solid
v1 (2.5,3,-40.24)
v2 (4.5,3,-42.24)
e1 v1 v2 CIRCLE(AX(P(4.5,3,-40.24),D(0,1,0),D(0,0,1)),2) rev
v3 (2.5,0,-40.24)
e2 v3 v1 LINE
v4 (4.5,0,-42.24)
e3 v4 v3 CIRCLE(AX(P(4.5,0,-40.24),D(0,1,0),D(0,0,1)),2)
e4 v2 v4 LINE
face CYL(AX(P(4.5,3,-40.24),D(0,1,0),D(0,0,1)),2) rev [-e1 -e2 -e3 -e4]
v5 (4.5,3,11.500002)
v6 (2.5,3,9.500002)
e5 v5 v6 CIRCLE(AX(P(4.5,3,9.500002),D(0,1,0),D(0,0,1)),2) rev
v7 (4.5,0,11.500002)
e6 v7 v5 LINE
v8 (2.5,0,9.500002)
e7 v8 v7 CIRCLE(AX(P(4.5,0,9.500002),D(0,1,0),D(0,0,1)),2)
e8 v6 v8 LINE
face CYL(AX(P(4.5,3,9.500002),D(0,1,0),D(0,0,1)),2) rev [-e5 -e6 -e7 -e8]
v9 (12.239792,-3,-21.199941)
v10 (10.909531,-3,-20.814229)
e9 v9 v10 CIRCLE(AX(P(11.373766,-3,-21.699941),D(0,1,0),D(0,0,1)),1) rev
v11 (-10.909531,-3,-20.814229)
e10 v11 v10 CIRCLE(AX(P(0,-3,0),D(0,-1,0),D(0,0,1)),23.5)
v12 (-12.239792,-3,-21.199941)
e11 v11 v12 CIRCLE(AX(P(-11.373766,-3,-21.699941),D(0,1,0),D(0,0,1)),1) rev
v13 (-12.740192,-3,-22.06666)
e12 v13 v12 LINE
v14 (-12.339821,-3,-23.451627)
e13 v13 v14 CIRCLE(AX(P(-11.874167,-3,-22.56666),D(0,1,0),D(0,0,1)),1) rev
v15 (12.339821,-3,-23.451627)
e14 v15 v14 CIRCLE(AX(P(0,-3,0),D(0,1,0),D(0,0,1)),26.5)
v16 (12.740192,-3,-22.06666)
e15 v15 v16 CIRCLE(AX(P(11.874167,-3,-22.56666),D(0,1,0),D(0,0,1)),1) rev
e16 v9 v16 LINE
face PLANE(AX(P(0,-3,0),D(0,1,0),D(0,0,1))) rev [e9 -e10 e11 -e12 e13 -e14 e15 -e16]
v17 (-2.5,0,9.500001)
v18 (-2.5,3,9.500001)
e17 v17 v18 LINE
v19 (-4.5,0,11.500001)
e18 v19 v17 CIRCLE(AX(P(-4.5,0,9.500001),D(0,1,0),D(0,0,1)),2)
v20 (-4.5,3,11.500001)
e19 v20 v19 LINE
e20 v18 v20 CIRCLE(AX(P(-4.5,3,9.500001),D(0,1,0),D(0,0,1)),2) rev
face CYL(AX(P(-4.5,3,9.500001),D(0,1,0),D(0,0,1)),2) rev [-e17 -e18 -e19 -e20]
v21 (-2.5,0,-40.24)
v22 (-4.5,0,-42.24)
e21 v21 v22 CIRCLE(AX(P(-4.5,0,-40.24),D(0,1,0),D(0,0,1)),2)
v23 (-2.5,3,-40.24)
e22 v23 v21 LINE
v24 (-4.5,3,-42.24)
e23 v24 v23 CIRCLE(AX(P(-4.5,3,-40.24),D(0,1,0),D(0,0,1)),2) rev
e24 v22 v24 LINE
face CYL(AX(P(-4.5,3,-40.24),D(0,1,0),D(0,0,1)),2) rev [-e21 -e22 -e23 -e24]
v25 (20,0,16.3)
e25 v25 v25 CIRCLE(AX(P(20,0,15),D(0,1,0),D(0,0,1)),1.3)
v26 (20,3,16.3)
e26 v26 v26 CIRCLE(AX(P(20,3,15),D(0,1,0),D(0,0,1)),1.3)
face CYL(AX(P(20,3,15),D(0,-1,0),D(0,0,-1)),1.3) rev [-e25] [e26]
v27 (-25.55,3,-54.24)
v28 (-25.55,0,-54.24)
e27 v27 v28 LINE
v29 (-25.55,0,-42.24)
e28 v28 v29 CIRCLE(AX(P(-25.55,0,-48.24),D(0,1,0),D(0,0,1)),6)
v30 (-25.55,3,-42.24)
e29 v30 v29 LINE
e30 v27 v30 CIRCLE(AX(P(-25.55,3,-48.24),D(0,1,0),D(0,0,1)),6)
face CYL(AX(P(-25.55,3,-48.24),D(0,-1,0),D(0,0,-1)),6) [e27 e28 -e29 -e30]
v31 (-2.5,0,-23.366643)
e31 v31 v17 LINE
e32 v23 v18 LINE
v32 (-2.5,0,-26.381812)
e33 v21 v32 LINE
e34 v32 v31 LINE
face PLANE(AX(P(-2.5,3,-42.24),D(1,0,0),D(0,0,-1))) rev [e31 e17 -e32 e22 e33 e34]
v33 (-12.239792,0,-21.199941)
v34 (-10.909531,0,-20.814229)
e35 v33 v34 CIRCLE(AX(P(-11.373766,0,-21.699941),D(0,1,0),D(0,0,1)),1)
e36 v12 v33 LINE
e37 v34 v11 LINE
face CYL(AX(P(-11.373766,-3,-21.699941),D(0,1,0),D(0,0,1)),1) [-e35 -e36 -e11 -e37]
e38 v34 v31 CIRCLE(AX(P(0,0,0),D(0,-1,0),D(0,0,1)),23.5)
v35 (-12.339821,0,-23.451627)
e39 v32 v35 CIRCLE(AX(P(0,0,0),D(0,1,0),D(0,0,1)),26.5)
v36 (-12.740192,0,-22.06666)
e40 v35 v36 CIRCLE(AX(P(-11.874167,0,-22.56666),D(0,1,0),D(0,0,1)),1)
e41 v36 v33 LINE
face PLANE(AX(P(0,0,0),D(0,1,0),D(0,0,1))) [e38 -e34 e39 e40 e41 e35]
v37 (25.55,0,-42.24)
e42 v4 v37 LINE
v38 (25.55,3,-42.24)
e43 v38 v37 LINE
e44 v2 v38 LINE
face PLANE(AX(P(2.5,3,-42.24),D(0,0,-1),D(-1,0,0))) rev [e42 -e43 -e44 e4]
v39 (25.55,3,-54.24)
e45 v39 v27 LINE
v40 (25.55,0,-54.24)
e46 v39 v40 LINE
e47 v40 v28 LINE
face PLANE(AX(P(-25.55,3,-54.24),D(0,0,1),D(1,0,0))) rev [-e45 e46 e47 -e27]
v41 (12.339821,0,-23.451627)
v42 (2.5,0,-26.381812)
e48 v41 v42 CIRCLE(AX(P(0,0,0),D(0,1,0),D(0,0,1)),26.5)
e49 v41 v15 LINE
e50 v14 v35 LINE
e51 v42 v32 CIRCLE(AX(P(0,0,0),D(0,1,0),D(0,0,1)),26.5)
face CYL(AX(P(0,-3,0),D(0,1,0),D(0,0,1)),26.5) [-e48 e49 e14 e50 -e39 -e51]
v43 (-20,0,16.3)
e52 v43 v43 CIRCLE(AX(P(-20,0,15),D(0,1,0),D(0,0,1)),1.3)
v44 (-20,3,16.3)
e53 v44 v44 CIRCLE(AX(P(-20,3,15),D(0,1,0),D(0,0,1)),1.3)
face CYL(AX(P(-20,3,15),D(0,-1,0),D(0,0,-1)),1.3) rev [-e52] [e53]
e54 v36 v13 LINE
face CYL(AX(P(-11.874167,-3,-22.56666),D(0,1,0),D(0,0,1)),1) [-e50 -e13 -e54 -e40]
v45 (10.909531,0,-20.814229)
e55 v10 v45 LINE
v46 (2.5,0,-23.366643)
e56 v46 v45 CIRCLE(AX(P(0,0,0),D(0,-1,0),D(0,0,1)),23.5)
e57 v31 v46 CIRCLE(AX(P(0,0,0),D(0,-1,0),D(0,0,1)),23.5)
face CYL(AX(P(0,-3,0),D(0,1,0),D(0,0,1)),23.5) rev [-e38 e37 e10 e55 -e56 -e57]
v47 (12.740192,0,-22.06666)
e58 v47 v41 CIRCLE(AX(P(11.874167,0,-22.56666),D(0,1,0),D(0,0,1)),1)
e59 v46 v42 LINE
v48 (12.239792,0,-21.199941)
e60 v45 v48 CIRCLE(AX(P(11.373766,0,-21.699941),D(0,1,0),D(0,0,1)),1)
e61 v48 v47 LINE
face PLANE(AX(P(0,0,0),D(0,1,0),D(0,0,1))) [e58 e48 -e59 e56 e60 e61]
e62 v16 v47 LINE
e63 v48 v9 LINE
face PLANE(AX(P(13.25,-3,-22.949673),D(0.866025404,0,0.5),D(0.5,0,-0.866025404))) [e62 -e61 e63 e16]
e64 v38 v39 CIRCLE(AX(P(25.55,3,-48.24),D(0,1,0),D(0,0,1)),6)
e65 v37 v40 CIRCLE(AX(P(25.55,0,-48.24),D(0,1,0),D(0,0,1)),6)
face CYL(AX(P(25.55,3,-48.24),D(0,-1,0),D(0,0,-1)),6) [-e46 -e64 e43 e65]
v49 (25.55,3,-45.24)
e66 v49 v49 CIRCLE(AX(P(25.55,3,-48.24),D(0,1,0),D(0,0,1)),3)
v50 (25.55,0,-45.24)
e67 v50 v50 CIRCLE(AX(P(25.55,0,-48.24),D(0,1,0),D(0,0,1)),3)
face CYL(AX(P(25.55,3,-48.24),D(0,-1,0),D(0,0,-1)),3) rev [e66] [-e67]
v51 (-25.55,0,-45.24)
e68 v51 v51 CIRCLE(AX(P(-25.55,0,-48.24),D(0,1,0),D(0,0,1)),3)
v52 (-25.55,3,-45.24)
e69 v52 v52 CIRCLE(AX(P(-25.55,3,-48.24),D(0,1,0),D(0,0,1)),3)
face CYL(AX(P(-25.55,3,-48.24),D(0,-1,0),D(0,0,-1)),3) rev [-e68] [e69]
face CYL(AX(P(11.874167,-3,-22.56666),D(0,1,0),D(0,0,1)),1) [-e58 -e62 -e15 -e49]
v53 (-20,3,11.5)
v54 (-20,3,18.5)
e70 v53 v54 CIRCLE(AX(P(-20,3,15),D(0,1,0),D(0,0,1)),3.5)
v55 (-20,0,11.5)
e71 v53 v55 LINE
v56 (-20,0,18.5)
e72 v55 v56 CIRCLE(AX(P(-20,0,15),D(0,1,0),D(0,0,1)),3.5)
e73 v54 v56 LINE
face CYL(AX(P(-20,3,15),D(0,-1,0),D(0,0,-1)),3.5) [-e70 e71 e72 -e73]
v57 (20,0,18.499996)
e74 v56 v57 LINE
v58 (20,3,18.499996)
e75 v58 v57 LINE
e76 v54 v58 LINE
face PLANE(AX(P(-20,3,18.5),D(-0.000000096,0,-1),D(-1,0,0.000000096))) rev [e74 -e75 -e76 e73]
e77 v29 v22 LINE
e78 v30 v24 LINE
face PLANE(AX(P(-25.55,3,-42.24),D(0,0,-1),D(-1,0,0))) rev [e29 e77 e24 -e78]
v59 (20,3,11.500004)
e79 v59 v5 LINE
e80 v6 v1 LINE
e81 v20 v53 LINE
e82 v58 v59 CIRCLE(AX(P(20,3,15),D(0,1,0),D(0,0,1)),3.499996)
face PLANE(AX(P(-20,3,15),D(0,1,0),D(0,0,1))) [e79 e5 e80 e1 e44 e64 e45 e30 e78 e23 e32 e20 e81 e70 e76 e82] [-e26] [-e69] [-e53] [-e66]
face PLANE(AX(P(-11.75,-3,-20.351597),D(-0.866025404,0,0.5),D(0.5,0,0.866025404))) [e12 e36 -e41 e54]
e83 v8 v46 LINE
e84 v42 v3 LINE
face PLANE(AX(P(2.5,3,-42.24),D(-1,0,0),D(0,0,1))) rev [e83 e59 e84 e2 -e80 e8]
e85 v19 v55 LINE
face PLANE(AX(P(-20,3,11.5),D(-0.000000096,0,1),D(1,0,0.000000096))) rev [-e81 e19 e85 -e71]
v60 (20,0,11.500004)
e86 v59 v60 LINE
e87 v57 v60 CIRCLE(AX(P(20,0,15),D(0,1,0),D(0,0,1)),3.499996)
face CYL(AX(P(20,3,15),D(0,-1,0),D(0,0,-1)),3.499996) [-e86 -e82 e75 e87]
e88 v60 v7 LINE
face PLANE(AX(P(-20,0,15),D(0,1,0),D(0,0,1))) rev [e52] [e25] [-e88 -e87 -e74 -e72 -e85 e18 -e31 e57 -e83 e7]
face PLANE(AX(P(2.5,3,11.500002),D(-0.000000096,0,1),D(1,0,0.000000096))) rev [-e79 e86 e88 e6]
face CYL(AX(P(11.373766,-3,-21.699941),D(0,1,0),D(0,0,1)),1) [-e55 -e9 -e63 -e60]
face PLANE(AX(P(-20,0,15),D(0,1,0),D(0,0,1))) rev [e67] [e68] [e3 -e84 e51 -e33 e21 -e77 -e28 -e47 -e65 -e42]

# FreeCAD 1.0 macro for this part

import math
import FreeCAD as App
import Part
import Sketcher

V = App.Vector
Q = App.Units.Quantity


def edges_at(feature, points):
    """Names of the edges that pass closest to the given points."""
    edges = feature.Shape.Edges
    near = lambda p: min(range(len(edges)), key=lambda i: edges[i].distToShape(Part.Vertex(*p))[0])
    return sorted({f"Edge{near(p) + 1}" for p in points})

doc = App.newDocument("Part")
params = doc.addObject("Spreadsheet::Sheet", "Params")
for row, (alias, value) in enumerate([
    ("sketch1_diameter", "6 mm"),
    ("sketch1_radius", "6 mm"),
    ("sketch1_diameter2", "2.6 mm"),
    ("sketch1_radius2", "3.5 mm"),
    ("sketch1_length", "40 mm"),
    ("pad1_length", "3 mm"),
    ("sketch2_radius", "23.5 mm"),
    ("sketch2_radius2", "26.5 mm"),
    ("pad2_length", "3 mm"),
    ("fillet_radius", "1 mm"),
    ("fillet2_radius", "2 mm"),
], start=1):
    params.set(f"A{row}", alias)
    params.set(f"B{row}", "=" + value)
    params.setAlias(f"B{row}", alias)

body = doc.addObject("PartDesign::Body", "Body")

sketch1 = doc.addObject("Sketcher::SketchObject", "Sketch")
body.addObject(sketch1)
sketch1.AttachmentSupport = (doc.XZ_Plane, [""])
sketch1.MapMode = "FlatFace"
sketch1.addGeometry([
    Part.LineSegment(V(25.6, -54.2, 0), V(-25.6, -54.2, 0)),
    Part.ArcOfCircle(Part.Circle(V(-25.6, -48.2, 0), V(0, 0, 1), 6), math.radians(90), math.radians(270)),
    Part.LineSegment(V(-25.6, -42.2, 0), V(-2.5, -42.2, 0)),
    Part.LineSegment(V(-2.5, -42.2, 0), V(-2.5, 11.5, 0)),
    Part.LineSegment(V(-2.5, 11.5, 0), V(-20, 11.5, 0)),
    Part.ArcOfCircle(Part.Circle(V(-20, 15, 0), V(0, 0, 1), 3.5), math.radians(90), math.radians(270)),
    Part.LineSegment(V(-20, 18.5, 0), V(20, 18.5, 0)),
    Part.ArcOfCircle(Part.Circle(V(20, 15, 0), V(0, 0, 1), 3.5), math.radians(-90), math.radians(90)),
    Part.LineSegment(V(20, 11.5, 0), V(2.5, 11.5, 0)),
    Part.LineSegment(V(2.5, 11.5, 0), V(2.5, -42.2, 0)),
    Part.LineSegment(V(2.5, -42.2, 0), V(25.6, -42.2, 0)),
    Part.ArcOfCircle(Part.Circle(V(25.6, -48.2, 0), V(0, 0, 1), 6), math.radians(-90), math.radians(90)),
    Part.Circle(V(20, 15, 0), V(0, 0, 1), 1.3),
    Part.Circle(V(-20, 15, 0), V(0, 0, 1), 1.3),
    Part.Circle(V(25.6, -48.2, 0), V(0, 0, 1), 3),
    Part.Circle(V(-25.6, -48.2, 0), V(0, 0, 1), 3),
], False)
sketch1.addConstraint([
    Sketcher.Constraint("Tangent", 0, 2, 1, 2),
    Sketcher.Constraint("Tangent", 1, 1, 2, 1),
    Sketcher.Constraint("Coincident", 2, 2, 3, 1),
    Sketcher.Constraint("Coincident", 3, 2, 4, 1),
    Sketcher.Constraint("Tangent", 4, 2, 5, 2),
    Sketcher.Constraint("Tangent", 5, 1, 6, 1),
    Sketcher.Constraint("Tangent", 6, 2, 7, 2),
    Sketcher.Constraint("Tangent", 7, 1, 8, 1),
    Sketcher.Constraint("Coincident", 8, 2, 9, 1),
    Sketcher.Constraint("Coincident", 9, 2, 10, 1),
    Sketcher.Constraint("Tangent", 10, 2, 11, 2),
    Sketcher.Constraint("Tangent", 11, 1, 0, 1),
    Sketcher.Constraint("Horizontal", 0),
    Sketcher.Constraint("Horizontal", 2),
    Sketcher.Constraint("Vertical", 3),
    Sketcher.Constraint("Horizontal", 4),
    Sketcher.Constraint("Horizontal", 8),
    Sketcher.Constraint("Vertical", 9),
    Sketcher.Constraint("Horizontal", 10),
    Sketcher.Constraint("Coincident", 12, 3, 7, 3),
    Sketcher.Constraint("Coincident", 13, 3, 5, 3),
    Sketcher.Constraint("Coincident", 14, 3, 11, 3),
    Sketcher.Constraint("Coincident", 15, 3, 1, 3),
    Sketcher.Constraint("Equal", 1, 11),
    Sketcher.Constraint("Equal", 12, 13),
    Sketcher.Constraint("Equal", 14, 15),
    Sketcher.Constraint("Symmetric", 5, 3, 7, 3, -2),
    Sketcher.Constraint("Symmetric", 3, 2, 8, 2, -2),
    Sketcher.Constraint("Equal", 2, 10),
    Sketcher.Constraint("Diameter", 14, Q("6 mm")),
    Sketcher.Constraint("Radius", 1, Q("6 mm")),
    Sketcher.Constraint("Diameter", 12, Q("2.6 mm")),
    Sketcher.Constraint("Radius", 5, Q("3.5 mm")),
    Sketcher.Constraint("Distance", 6, Q("40 mm")),
    Sketcher.Constraint("DistanceX", 0, 2, 0, 1, Q("51.1 mm")),
    Sketcher.Constraint("DistanceX", 4, 2, 4, 1, Q("17.5 mm")),
    Sketcher.Constraint("DistanceY", -1, 1, 5, 3, Q("15 mm")),
    Sketcher.Constraint("DistanceY", 3, 1, 3, 2, Q("53.740001 mm")),
])
sketch1.setExpression("Constraints[29]", "Params.sketch1_diameter")
sketch1.setExpression("Constraints[30]", "Params.sketch1_radius")
sketch1.setExpression("Constraints[31]", "Params.sketch1_diameter2")
sketch1.setExpression("Constraints[32]", "Params.sketch1_radius2")
sketch1.setExpression("Constraints[33]", "Params.sketch1_length")
pad1 = doc.addObject("PartDesign::Pad", "Pad")
body.addObject(pad1)
pad1.Profile = sketch1
pad1.setExpression("Length", "Params.pad1_length")
pad1.Reversed = True

sketch2 = doc.addObject("Sketcher::SketchObject", "Sketch001")
body.addObject(sketch2)
sketch2.AttachmentSupport = (doc.XZ_Plane, [""])
sketch2.MapMode = "FlatFace"
sketch2.addGeometry([
    Part.LineSegment(V(-13.2, -22.9, 0), V(-11.8, -20.4, 0)),
    Part.ArcOfCircle(Part.Circle(V(0, 0, 0), V(0, 0, 1), 23.5), math.radians(-120), math.radians(-60)),
    Part.LineSegment(V(11.8, -20.4, 0), V(13.2, -22.9, 0)),
    Part.ArcOfCircle(Part.Circle(V(0, 0, 0), V(0, 0, 1), 26.5), math.radians(-120), math.radians(-60)),
], False)
sketch2.addConstraint([
    Sketcher.Constraint("Coincident", 0, 2, 1, 1),
    Sketcher.Constraint("Coincident", 1, 2, 2, 1),
    Sketcher.Constraint("Coincident", 2, 2, 3, 2),
    Sketcher.Constraint("Coincident", 3, 1, 0, 1),
    Sketcher.Constraint("Coincident", 1, 3, -1, 1),
    Sketcher.Constraint("Coincident", 3, 3, -1, 1),
    Sketcher.Constraint("Horizontal", 0, 2, 1, 2),
    Sketcher.Constraint("Horizontal", 2, 2, 3, 1),
    Sketcher.Constraint("Radius", 1, Q("23.5 mm")),
    Sketcher.Constraint("Radius", 3, Q("26.5 mm")),
    Sketcher.Constraint("Angle", 0, Q("60 deg")),
    Sketcher.Constraint("DistanceX", 0, 2, 2, 2, Q("25 mm")),
])
sketch2.setExpression("Constraints[8]", "Params.sketch2_radius")
sketch2.setExpression("Constraints[9]", "Params.sketch2_radius2")
pad2 = doc.addObject("PartDesign::Pad", "Pad001")
body.addObject(pad2)
pad2.Profile = sketch2
pad2.setExpression("Length", "Params.pad2_length")
doc.recompute()

fillet = doc.addObject("PartDesign::Fillet", "Fillet")
body.addObject(fillet)
fillet.Base = (pad2, edges_at(pad2, [
    (-13.25, -1.5, -22.95),
    (13.25, -1.5, -22.95),
    (11.75, -1.5, -20.352),
    (-11.75, -1.5, -20.352),
]))
fillet.setExpression("Radius", "Params.fillet_radius")
doc.recompute()

fillet2 = doc.addObject("PartDesign::Fillet", "Fillet001")
body.addObject(fillet2)
fillet2.Base = (fillet, edges_at(fillet, [
    (-2.5, 1.5, 11.5),
    (-2.5, 1.5, -42.24),
    (2.5, 1.5, -42.24),
    (2.5, 1.5, 11.5),
]))
fillet2.setExpression("Radius", "Params.fillet2_radius")

doc.recompute()
